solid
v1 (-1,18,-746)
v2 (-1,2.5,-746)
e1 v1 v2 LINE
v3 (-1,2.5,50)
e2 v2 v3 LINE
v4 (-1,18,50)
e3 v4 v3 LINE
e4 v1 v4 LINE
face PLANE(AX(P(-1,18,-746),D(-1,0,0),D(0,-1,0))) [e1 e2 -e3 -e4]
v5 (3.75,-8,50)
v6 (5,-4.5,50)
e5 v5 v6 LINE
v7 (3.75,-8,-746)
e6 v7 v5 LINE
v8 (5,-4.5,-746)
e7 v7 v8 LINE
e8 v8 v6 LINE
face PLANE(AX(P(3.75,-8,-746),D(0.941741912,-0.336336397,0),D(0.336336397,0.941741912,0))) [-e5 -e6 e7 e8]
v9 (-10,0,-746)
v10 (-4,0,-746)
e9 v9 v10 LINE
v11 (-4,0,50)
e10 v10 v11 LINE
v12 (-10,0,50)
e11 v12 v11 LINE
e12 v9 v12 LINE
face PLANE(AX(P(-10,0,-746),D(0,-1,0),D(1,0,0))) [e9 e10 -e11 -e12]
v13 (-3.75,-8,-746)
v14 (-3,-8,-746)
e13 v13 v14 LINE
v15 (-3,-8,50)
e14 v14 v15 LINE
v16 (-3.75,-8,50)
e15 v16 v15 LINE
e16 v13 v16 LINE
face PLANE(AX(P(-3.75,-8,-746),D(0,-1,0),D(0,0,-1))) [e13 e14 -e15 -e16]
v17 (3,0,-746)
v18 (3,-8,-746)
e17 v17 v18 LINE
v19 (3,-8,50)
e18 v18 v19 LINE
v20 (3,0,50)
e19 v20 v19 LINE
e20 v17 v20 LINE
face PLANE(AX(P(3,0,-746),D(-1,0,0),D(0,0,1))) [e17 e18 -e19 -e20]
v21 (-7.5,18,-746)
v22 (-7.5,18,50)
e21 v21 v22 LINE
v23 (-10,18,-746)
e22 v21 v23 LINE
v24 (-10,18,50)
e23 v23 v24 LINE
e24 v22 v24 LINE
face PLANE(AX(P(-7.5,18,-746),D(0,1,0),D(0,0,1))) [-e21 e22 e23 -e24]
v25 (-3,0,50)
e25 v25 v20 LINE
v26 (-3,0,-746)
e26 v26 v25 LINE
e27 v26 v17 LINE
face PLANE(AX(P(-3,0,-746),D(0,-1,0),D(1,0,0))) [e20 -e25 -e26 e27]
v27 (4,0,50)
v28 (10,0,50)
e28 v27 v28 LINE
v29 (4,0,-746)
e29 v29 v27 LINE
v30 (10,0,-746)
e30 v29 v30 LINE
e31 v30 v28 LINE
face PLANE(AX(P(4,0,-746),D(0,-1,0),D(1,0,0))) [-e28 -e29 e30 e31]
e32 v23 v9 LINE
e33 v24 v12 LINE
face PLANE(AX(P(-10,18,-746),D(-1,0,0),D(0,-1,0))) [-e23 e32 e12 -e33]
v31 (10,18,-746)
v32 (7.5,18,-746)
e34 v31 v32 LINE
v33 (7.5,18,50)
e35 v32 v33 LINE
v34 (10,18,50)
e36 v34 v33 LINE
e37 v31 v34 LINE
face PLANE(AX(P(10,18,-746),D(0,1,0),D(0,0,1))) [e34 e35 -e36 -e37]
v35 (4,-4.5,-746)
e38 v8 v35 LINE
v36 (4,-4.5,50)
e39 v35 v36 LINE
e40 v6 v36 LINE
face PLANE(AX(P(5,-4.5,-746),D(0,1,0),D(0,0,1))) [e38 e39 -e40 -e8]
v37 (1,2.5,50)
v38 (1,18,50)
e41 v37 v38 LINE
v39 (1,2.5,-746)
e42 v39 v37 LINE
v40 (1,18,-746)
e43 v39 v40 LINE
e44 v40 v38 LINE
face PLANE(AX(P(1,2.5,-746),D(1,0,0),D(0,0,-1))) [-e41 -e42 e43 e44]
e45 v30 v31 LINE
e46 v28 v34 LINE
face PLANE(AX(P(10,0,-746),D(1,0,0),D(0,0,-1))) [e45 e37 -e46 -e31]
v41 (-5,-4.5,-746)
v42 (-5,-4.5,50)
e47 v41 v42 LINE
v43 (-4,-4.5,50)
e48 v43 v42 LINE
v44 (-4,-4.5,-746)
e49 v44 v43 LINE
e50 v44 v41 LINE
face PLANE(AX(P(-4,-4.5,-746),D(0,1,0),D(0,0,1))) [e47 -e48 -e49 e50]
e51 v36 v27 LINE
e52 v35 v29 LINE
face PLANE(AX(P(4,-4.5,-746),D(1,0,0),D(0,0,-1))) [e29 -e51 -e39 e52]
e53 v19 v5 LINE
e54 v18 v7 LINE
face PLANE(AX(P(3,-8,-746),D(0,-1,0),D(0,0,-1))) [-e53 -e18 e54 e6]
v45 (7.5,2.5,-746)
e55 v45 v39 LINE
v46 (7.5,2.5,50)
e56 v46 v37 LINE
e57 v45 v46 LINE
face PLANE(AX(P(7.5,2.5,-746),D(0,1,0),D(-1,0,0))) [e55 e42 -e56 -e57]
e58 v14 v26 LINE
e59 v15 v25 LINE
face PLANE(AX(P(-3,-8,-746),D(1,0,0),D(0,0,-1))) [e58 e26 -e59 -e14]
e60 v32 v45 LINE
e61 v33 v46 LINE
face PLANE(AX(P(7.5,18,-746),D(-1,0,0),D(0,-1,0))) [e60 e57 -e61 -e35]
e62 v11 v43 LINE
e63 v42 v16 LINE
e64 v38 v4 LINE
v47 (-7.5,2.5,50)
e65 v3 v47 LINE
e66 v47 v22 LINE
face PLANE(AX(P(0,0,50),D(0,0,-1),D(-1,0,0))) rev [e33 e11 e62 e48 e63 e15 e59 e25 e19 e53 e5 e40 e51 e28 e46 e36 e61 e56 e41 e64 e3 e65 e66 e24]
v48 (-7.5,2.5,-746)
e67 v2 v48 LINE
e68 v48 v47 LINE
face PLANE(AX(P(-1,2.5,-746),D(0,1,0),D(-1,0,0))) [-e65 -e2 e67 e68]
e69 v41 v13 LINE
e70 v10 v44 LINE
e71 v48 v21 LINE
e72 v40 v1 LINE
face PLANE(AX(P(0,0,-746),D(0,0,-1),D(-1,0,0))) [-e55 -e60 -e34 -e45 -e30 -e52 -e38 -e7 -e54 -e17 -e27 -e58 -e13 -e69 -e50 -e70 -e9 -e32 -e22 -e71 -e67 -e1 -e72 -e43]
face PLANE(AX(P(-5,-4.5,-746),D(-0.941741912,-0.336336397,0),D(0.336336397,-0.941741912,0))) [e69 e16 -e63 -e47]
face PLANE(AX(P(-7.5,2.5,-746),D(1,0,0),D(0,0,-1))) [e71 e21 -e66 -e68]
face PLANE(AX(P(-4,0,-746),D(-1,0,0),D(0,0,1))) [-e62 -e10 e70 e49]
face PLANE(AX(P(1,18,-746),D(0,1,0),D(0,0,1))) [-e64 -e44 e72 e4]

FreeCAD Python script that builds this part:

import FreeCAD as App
import Part
import Sketcher

V = App.Vector
Q = App.Units.Quantity

doc = App.newDocument("Part")
params = doc.addObject("Spreadsheet::Sheet", "Params")
for row, (alias, value) in enumerate([
    ("sketch1_width", "6 mm"),
    ("sketch1_width2", "1 mm"),
    ("sketch1_width3", "2 mm"),
    ("sketch1_height", "18 mm"),
    ("sketch1_height2", "8 mm"),
    ("pad1_length", "796 mm"),
], start=1):
    params.set(f"A{row}", alias)
    params.set(f"B{row}", "=" + value)
    params.setAlias(f"B{row}", alias)

body = doc.addObject("PartDesign::Body", "Body")

# Sketch on XY plane
sketch1 = doc.addObject("Sketcher::SketchObject", "Sketch")
body.addObject(sketch1)
sketch1.AttachmentSupport = (doc.XY_Plane, [""])
sketch1.MapMode = "FlatFace"
sketch1.AttachmentOffset = App.Placement(V(0, 0, 50), App.Rotation())
sketch1.addGeometry(Part.LineSegment(V(-1, 2.5, 0), V(-7.5, 2.5, 0)), False)
sketch1.addGeometry(Part.LineSegment(V(-7.5, 2.5, 0), V(-7.5, 18, 0)), False)
sketch1.addGeometry(Part.LineSegment(V(-7.5, 18, 0), V(-10, 18, 0)), False)
sketch1.addGeometry(Part.LineSegment(V(-10, 18, 0), V(-10, 0, 0)), False)
sketch1.addGeometry(Part.LineSegment(V(-10, 0, 0), V(-4, 0, 0)), False)
sketch1.addGeometry(Part.LineSegment(V(-4, 0, 0), V(-4, -4.5, 0)), False)
sketch1.addGeometry(Part.LineSegment(V(-4, -4.5, 0), V(-5, -4.5, 0)), False)
sketch1.addGeometry(Part.LineSegment(V(-5, -4.5, 0), V(-3.75, -8, 0)), False)
sketch1.addGeometry(Part.LineSegment(V(-3.75, -8, 0), V(-3, -8, 0)), False)
sketch1.addGeometry(Part.LineSegment(V(-3, -8, 0), V(-3, 0, 0)), False)
sketch1.addGeometry(Part.LineSegment(V(-3, 0, 0), V(3, 0, 0)), False)
sketch1.addGeometry(Part.LineSegment(V(3, 0, 0), V(3, -8, 0)), False)
sketch1.addGeometry(Part.LineSegment(V(3, -8, 0), V(3.75, -8, 0)), False)
sketch1.addGeometry(Part.LineSegment(V(3.75, -8, 0), V(5, -4.5, 0)), False)
sketch1.addGeometry(Part.LineSegment(V(5, -4.5, 0), V(4, -4.5, 0)), False)
sketch1.addGeometry(Part.LineSegment(V(4, -4.5, 0), V(4, 0, 0)), False)
sketch1.addGeometry(Part.LineSegment(V(4, 0, 0), V(10, 0, 0)), False)
sketch1.addGeometry(Part.LineSegment(V(10, 0, 0), V(10, 18, 0)), False)
sketch1.addGeometry(Part.LineSegment(V(10, 18, 0), V(7.5, 18, 0)), False)
sketch1.addGeometry(Part.LineSegment(V(7.5, 18, 0), V(7.5, 2.5, 0)), False)
sketch1.addGeometry(Part.LineSegment(V(7.5, 2.5, 0), V(1, 2.5, 0)), False)
sketch1.addGeometry(Part.LineSegment(V(1, 2.5, 0), V(1, 18, 0)), False)
sketch1.addGeometry(Part.LineSegment(V(1, 18, 0), V(-1, 18, 0)), False)
sketch1.addGeometry(Part.LineSegment(V(-1, 18, 0), V(-1, 2.5, 0)), False)
sketch1.addConstraint(Sketcher.Constraint("Coincident", 0, 2, 1, 1))
sketch1.addConstraint(Sketcher.Constraint("Coincident", 1, 2, 2, 1))
sketch1.addConstraint(Sketcher.Constraint("Coincident", 2, 2, 3, 1))
sketch1.addConstraint(Sketcher.Constraint("Coincident", 3, 2, 4, 1))
sketch1.addConstraint(Sketcher.Constraint("Coincident", 4, 2, 5, 1))
sketch1.addConstraint(Sketcher.Constraint("Coincident", 5, 2, 6, 1))
sketch1.addConstraint(Sketcher.Constraint("Coincident", 6, 2, 7, 1))
sketch1.addConstraint(Sketcher.Constraint("Coincident", 7, 2, 8, 1))
sketch1.addConstraint(Sketcher.Constraint("Coincident", 8, 2, 9, 1))
sketch1.addConstraint(Sketcher.Constraint("Coincident", 9, 2, 10, 1))
sketch1.addConstraint(Sketcher.Constraint("Coincident", 10, 2, 11, 1))
sketch1.addConstraint(Sketcher.Constraint("Coincident", 11, 2, 12, 1))
sketch1.addConstraint(Sketcher.Constraint("Coincident", 12, 2, 13, 1))
sketch1.addConstraint(Sketcher.Constraint("Coincident", 13, 2, 14, 1))
sketch1.addConstraint(Sketcher.Constraint("Coincident", 14, 2, 15, 1))
sketch1.addConstraint(Sketcher.Constraint("Coincident", 15, 2, 16, 1))
sketch1.addConstraint(Sketcher.Constraint("Coincident", 16, 2, 17, 1))
sketch1.addConstraint(Sketcher.Constraint("Coincident", 17, 2, 18, 1))
sketch1.addConstraint(Sketcher.Constraint("Coincident", 18, 2, 19, 1))
sketch1.addConstraint(Sketcher.Constraint("Coincident", 19, 2, 20, 1))
sketch1.addConstraint(Sketcher.Constraint("Coincident", 20, 2, 21, 1))
sketch1.addConstraint(Sketcher.Constraint("Coincident", 21, 2, 22, 1))
sketch1.addConstraint(Sketcher.Constraint("Coincident", 22, 2, 23, 1))
sketch1.addConstraint(Sketcher.Constraint("Coincident", 23, 2, 0, 1))
sketch1.addConstraint(Sketcher.Constraint("Horizontal", 0))
sketch1.addConstraint(Sketcher.Constraint("Vertical", 1))
sketch1.addConstraint(Sketcher.Constraint("Horizontal", 2))
sketch1.addConstraint(Sketcher.Constraint("Vertical", 3))
sketch1.addConstraint(Sketcher.Constraint("Horizontal", 4))
sketch1.addConstraint(Sketcher.Constraint("Vertical", 5))
sketch1.addConstraint(Sketcher.Constraint("Horizontal", 6))
sketch1.addConstraint(Sketcher.Constraint("Horizontal", 8))
sketch1.addConstraint(Sketcher.Constraint("Vertical", 9))
sketch1.addConstraint(Sketcher.Constraint("Horizontal", 10))
sketch1.addConstraint(Sketcher.Constraint("Vertical", 11))
sketch1.addConstraint(Sketcher.Constraint("Horizontal", 12))
sketch1.addConstraint(Sketcher.Constraint("Horizontal", 14))
sketch1.addConstraint(Sketcher.Constraint("Vertical", 15))
sketch1.addConstraint(Sketcher.Constraint("Horizontal", 16))
sketch1.addConstraint(Sketcher.Constraint("Vertical", 17))
sketch1.addConstraint(Sketcher.Constraint("Horizontal", 18))
sketch1.addConstraint(Sketcher.Constraint("Vertical", 19))
sketch1.addConstraint(Sketcher.Constraint("Horizontal", 20))
sketch1.addConstraint(Sketcher.Constraint("Vertical", 21))
sketch1.addConstraint(Sketcher.Constraint("Horizontal", 22))
sketch1.addConstraint(Sketcher.Constraint("Vertical", 23))
sketch1.addConstraint(Sketcher.Constraint("Symmetric", 9, 2, 10, 2, -1, 1))
sketch1.addConstraint(Sketcher.Constraint("Symmetric", 4, 2, 15, 2, -1, 1))
sketch1.addConstraint(Sketcher.Constraint("Symmetric", 7, 2, 12, 2, -2))
sketch1.addConstraint(Sketcher.Constraint("Symmetric", 6, 2, 13, 2, -2))
sketch1.addConstraint(Sketcher.Constraint("Symmetric", 3, 2, 16, 2, -2))
sketch1.addConstraint(Sketcher.Constraint("Symmetric", 1, 2, 18, 2, -2))
sketch1.addConstraint(Sketcher.Constraint("Symmetric", 20, 2, 23, 2, -2))
sketch1.addConstraint(Sketcher.Constraint("Horizontal", 18, 2, 21, 2))
sketch1.addConstraint(Sketcher.Constraint("Equal", 4, 10))
sketch1.addConstraint(Sketcher.Constraint("DistanceX", 4, 1, 4, 2, Q("6 mm")))
sketch1.addConstraint(Sketcher.Constraint("DistanceX", 6, 2, 6, 1, Q("1 mm")))
sketch1.addConstraint(Sketcher.Constraint("DistanceX", 22, 2, 22, 1, Q("2 mm")))
sketch1.addConstraint(Sketcher.Constraint("DistanceY", 3, 2, 3, 1, Q("18 mm")))
sketch1.addConstraint(Sketcher.Constraint("DistanceY", 9, 1, 9, 2, Q("8 mm")))
sketch1.addConstraint(Sketcher.Constraint("DistanceX", 0, 2, 0, 1, Q("6.5 mm")))
sketch1.addConstraint(Sketcher.Constraint("DistanceX", 2, 2, 2, 1, Q("2.5 mm")))
sketch1.addConstraint(Sketcher.Constraint("DistanceY", 1, 1, 1, 2, Q("15.5 mm")))
sketch1.addConstraint(Sketcher.Constraint("DistanceY", 5, 2, 5, 1, Q("4.5 mm")))
sketch1.addConstraint(Sketcher.Constraint("DistanceX", 8, 1, 8, 2, Q("0.75 mm")))
sketch1.setExpression("Constraints[55]", "Params.sketch1_width")
sketch1.setExpression("Constraints[56]", "Params.sketch1_width2")
sketch1.setExpression("Constraints[57]", "Params.sketch1_width3")
sketch1.setExpression("Constraints[58]", "Params.sketch1_height")
sketch1.setExpression("Constraints[59]", "Params.sketch1_height2")
pad1 = doc.addObject("PartDesign::Pad", "Pad")
body.addObject(pad1)
pad1.Profile = sketch1
pad1.setExpression("Length", "Params.pad1_length")
pad1.Reversed = True

doc.recompute()
